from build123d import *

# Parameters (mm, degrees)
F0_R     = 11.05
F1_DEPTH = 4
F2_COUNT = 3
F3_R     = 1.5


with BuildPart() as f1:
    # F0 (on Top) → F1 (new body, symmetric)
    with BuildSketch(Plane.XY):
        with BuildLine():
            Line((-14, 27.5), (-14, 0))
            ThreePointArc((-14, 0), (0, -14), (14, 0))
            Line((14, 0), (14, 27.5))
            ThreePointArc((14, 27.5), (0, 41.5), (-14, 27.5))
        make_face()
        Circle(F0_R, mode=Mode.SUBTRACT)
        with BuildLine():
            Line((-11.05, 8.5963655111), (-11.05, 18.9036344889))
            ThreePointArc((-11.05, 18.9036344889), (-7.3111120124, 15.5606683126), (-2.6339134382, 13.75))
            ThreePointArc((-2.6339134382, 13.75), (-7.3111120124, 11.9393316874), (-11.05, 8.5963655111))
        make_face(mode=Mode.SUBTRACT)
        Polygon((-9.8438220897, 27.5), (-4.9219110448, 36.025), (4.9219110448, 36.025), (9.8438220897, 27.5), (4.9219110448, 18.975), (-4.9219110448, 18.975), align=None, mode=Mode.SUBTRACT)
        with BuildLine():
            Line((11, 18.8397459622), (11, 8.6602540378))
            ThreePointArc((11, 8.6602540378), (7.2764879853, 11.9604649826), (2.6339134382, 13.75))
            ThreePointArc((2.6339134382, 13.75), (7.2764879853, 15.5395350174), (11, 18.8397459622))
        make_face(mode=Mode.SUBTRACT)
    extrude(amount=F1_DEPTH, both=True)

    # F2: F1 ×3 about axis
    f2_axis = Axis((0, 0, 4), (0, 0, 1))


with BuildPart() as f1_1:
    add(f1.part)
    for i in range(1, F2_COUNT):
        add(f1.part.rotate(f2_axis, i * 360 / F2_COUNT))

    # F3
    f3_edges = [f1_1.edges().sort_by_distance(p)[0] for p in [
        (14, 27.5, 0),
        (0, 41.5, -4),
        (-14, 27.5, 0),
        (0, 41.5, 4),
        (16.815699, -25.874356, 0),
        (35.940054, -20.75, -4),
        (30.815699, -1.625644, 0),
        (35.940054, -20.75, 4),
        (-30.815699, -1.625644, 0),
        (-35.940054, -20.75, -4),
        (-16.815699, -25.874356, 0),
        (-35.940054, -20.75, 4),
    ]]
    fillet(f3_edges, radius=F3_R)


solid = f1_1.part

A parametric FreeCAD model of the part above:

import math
import FreeCAD as App
import Part
import Sketcher
Q = App.Units.Quantity


def edges_at(feature, points):
    """Names of the edges that pass closest to the given points."""
    edges = feature.Shape.Edges
    near = lambda p: min(range(len(edges)), key=lambda i: edges[i].distToShape(Part.Vertex(*p))[0])
    return sorted({f"Edge{near(p) + 1}" for p in points})


def add_polygon(sketch, points):
    """Adds a closed chain of lines whose ends are joined by coincident constraints."""
    first, n = sketch.GeometryCount, len(points)
    for a, b in zip(points, points[1:] + points[:1]):
        sketch.addGeometry(Part.LineSegment(App.Vector(*a, 0), App.Vector(*b, 0)), False)
    for i in range(n):
        sketch.addConstraint(Sketcher.Constraint("Coincident", first + i, 2, first + (i + 1) % n, 1))

doc = App.newDocument("Part")
body = doc.addObject("PartDesign::Body", "Body")

# Sketch on XY plane
sketch1 = doc.addObject("Sketcher::SketchObject", "Sketch")
body.addObject(sketch1)
sketch1.AttachmentSupport = (doc.XY_Plane, [""])
sketch1.MapMode = "FlatFace"
sketch1.addGeometry(Part.LineSegment(App.Vector(-14, 28, 0), App.Vector(-14, 0, 0)), False)  # 0
sketch1.addGeometry(Part.ArcOfCircle(Part.Circle(App.Vector(0, 0, 0), App.Vector(0, 0, 1), 14), math.radians(180), math.radians(360)), False)  # 1
sketch1.addGeometry(Part.LineSegment(App.Vector(14, 0, 0), App.Vector(14, 28, 0)), False)  # 2
sketch1.addGeometry(Part.ArcOfCircle(Part.Circle(App.Vector(0, 28, 0), App.Vector(0, 0, 1), 14), math.radians(0), math.radians(180)), False)  # 3
sketch1.addGeometry(Part.Circle(App.Vector(0, 0, 0), App.Vector(0, 0, 1), 11), False)  # 4
sketch1.addGeometry(Part.ArcOfCircle(Part.Circle(App.Vector(0, 0, 0), App.Vector(0, 0, 1), 14), math.radians(101), math.radians(142)), False)  # 5
sketch1.addGeometry(Part.LineSegment(App.Vector(-11, 9, 0), App.Vector(-11, 19, 0)), False)  # 6
sketch1.addGeometry(Part.ArcOfCircle(Part.Circle(App.Vector(0, 28, 0), App.Vector(0, 0, 1), 14), math.radians(-142), math.radians(-101)), False)  # 7
sketch1.addGeometry(Part.ArcOfCircle(Part.Circle(App.Vector(0, 28, 0), App.Vector(0, 0, 1), 14), math.radians(-79), math.radians(-38)), False)  # 8
sketch1.addGeometry(Part.LineSegment(App.Vector(11, 19, 0), App.Vector(11, 9, 0)), False)  # 9
sketch1.addGeometry(Part.ArcOfCircle(Part.Circle(App.Vector(0, 0, 0), App.Vector(0, 0, 1), 14), math.radians(38), math.radians(79)), False)  # 10
add_polygon(sketch1, [(-5, 19), (-10, 28), (-5, 36), (5, 36), (10, 28), (5, 19)])  # lines 11-16
sketch1.addConstraint(Sketcher.Constraint("Tangent", 0, 2, 1, 1))
sketch1.addConstraint(Sketcher.Constraint("Tangent", 1, 2, 2, 1))
sketch1.addConstraint(Sketcher.Constraint("Tangent", 2, 2, 3, 1))
sketch1.addConstraint(Sketcher.Constraint("Tangent", 3, 2, 0, 1))
sketch1.addConstraint(Sketcher.Constraint("Coincident", 5, 2, 6, 1))
sketch1.addConstraint(Sketcher.Constraint("Coincident", 6, 2, 7, 1))
sketch1.addConstraint(Sketcher.Constraint("Coincident", 7, 2, 5, 1))
sketch1.addConstraint(Sketcher.Constraint("Coincident", 8, 2, 9, 1))
sketch1.addConstraint(Sketcher.Constraint("Coincident", 9, 2, 10, 1))
sketch1.addConstraint(Sketcher.Constraint("Coincident", 10, 2, 8, 1))
sketch1.addConstraint(Sketcher.Constraint("Vertical", 0))
sketch1.addConstraint(Sketcher.Constraint("Vertical", 2))
sketch1.addConstraint(Sketcher.Constraint("Vertical", 6))
sketch1.addConstraint(Sketcher.Constraint("Vertical", 9))
sketch1.addConstraint(Sketcher.Constraint("Horizontal", 13))
sketch1.addConstraint(Sketcher.Constraint("Horizontal", 16))
sketch1.addConstraint(Sketcher.Constraint("Coincident", 1, 3, -1, 1))
sketch1.addConstraint(Sketcher.Constraint("Coincident", 4, 3, -1, 1))
sketch1.addConstraint(Sketcher.Constraint("Coincident", 5, 3, -1, 1))
sketch1.addConstraint(Sketcher.Constraint("Coincident", 10, 3, -1, 1))
sketch1.addConstraint(Sketcher.Constraint("Coincident", 7, 3, 3, 3))
sketch1.addConstraint(Sketcher.Constraint("Coincident", 8, 3, 3, 3))
sketch1.addConstraint(Sketcher.Constraint("Equal", 3, 5))
sketch1.addConstraint(Sketcher.Constraint("Equal", 5, 7))
sketch1.addConstraint(Sketcher.Constraint("Equal", 7, 8))
sketch1.addConstraint(Sketcher.Constraint("Equal", 8, 10))
sketch1.addConstraint(Sketcher.Constraint("Symmetric", 11, 2, 14, 2, -2))
sketch1.addConstraint(Sketcher.Constraint("Parallel", 11, 14))
sketch1.addConstraint(Sketcher.Constraint("Parallel", 12, 15))
sketch1.addConstraint(Sketcher.Constraint("Horizontal", 3, 2, 11, 2))
sketch1.addConstraint(Sketcher.Constraint("Vertical", 13, 2, 15, 2))
sketch1.addConstraint(Sketcher.Constraint("Vertical", 12, 2, 16, 2))
sketch1.addConstraint(Sketcher.Constraint("Radius", 1, 14.0))
sketch1.addConstraint(Sketcher.Constraint("Diameter", 4, 22.1))
sketch1.addConstraint(Sketcher.Constraint("Angle", 11, Q("120 deg")))
sketch1.addConstraint(Sketcher.Constraint("DistanceY", 0, 2, 0, 1, 27.5))
sketch1.addConstraint(Sketcher.Constraint("DistanceX", -1, 1, 8, 2, 11.0))
sketch1.addConstraint(Sketcher.Constraint("DistanceX", 5, 2, -1, 1, 11.05))
sketch1.addConstraint(Sketcher.Constraint("DistanceY", -1, 1, 12, 2, 36.025))
sketch1.addConstraint(Sketcher.Constraint("DistanceX", 13, 1, 13, 2, 9.843822))
pad1 = doc.addObject("PartDesign::Pad", "Pad")
body.addObject(pad1)
pad1.Profile = sketch1
pad1.Length = 8
pad1.Midplane = True
body2 = doc.addObject("PartDesign::Body", "Body001")
doc.recompute()

body2.BaseFeature = body
doc.recompute()

body3 = doc.addObject("PartDesign::Body", "Body002")
body3.BaseFeature = body
body3.Placement = App.Placement(App.Vector(0, 0, 0), App.Rotation(App.Vector(0, 0, 1), 120))
boolean = doc.addObject("PartDesign::Boolean", "Boolean")
body2.addObject(boolean)
boolean.Type = "Fuse"
boolean.addObjects([body3])
doc.recompute()

body.Placement = App.Placement(App.Vector(0, 0, 0), App.Rotation(App.Vector(0, 0, 1), 240))
boolean2 = doc.addObject("PartDesign::Boolean", "Boolean001")
body2.addObject(boolean2)
boolean2.Type = "Fuse"
boolean2.addObjects([body])
doc.recompute()

fillet = doc.addObject("PartDesign::Fillet", "Fillet")
body2.addObject(fillet)
fillet.Base = (boolean2, edges_at(boolean2, [
    (14, 27.5, 0),
    (0, 41.5, -4),
    (-14, 27.5, 0),
    (0, 41.5, 4),
    (16.816, -25.874, 0),
    (35.94, -20.75, -4),
    (30.816, -1.626, 0),
    (35.94, -20.75, 4),
    (-30.816, -1.626, 0),
    (-35.94, -20.75, -4),
    (-16.816, -25.874, 0),
    (-35.94, -20.75, 4),
]))
fillet.Radius = 1.5

doc.recompute()
